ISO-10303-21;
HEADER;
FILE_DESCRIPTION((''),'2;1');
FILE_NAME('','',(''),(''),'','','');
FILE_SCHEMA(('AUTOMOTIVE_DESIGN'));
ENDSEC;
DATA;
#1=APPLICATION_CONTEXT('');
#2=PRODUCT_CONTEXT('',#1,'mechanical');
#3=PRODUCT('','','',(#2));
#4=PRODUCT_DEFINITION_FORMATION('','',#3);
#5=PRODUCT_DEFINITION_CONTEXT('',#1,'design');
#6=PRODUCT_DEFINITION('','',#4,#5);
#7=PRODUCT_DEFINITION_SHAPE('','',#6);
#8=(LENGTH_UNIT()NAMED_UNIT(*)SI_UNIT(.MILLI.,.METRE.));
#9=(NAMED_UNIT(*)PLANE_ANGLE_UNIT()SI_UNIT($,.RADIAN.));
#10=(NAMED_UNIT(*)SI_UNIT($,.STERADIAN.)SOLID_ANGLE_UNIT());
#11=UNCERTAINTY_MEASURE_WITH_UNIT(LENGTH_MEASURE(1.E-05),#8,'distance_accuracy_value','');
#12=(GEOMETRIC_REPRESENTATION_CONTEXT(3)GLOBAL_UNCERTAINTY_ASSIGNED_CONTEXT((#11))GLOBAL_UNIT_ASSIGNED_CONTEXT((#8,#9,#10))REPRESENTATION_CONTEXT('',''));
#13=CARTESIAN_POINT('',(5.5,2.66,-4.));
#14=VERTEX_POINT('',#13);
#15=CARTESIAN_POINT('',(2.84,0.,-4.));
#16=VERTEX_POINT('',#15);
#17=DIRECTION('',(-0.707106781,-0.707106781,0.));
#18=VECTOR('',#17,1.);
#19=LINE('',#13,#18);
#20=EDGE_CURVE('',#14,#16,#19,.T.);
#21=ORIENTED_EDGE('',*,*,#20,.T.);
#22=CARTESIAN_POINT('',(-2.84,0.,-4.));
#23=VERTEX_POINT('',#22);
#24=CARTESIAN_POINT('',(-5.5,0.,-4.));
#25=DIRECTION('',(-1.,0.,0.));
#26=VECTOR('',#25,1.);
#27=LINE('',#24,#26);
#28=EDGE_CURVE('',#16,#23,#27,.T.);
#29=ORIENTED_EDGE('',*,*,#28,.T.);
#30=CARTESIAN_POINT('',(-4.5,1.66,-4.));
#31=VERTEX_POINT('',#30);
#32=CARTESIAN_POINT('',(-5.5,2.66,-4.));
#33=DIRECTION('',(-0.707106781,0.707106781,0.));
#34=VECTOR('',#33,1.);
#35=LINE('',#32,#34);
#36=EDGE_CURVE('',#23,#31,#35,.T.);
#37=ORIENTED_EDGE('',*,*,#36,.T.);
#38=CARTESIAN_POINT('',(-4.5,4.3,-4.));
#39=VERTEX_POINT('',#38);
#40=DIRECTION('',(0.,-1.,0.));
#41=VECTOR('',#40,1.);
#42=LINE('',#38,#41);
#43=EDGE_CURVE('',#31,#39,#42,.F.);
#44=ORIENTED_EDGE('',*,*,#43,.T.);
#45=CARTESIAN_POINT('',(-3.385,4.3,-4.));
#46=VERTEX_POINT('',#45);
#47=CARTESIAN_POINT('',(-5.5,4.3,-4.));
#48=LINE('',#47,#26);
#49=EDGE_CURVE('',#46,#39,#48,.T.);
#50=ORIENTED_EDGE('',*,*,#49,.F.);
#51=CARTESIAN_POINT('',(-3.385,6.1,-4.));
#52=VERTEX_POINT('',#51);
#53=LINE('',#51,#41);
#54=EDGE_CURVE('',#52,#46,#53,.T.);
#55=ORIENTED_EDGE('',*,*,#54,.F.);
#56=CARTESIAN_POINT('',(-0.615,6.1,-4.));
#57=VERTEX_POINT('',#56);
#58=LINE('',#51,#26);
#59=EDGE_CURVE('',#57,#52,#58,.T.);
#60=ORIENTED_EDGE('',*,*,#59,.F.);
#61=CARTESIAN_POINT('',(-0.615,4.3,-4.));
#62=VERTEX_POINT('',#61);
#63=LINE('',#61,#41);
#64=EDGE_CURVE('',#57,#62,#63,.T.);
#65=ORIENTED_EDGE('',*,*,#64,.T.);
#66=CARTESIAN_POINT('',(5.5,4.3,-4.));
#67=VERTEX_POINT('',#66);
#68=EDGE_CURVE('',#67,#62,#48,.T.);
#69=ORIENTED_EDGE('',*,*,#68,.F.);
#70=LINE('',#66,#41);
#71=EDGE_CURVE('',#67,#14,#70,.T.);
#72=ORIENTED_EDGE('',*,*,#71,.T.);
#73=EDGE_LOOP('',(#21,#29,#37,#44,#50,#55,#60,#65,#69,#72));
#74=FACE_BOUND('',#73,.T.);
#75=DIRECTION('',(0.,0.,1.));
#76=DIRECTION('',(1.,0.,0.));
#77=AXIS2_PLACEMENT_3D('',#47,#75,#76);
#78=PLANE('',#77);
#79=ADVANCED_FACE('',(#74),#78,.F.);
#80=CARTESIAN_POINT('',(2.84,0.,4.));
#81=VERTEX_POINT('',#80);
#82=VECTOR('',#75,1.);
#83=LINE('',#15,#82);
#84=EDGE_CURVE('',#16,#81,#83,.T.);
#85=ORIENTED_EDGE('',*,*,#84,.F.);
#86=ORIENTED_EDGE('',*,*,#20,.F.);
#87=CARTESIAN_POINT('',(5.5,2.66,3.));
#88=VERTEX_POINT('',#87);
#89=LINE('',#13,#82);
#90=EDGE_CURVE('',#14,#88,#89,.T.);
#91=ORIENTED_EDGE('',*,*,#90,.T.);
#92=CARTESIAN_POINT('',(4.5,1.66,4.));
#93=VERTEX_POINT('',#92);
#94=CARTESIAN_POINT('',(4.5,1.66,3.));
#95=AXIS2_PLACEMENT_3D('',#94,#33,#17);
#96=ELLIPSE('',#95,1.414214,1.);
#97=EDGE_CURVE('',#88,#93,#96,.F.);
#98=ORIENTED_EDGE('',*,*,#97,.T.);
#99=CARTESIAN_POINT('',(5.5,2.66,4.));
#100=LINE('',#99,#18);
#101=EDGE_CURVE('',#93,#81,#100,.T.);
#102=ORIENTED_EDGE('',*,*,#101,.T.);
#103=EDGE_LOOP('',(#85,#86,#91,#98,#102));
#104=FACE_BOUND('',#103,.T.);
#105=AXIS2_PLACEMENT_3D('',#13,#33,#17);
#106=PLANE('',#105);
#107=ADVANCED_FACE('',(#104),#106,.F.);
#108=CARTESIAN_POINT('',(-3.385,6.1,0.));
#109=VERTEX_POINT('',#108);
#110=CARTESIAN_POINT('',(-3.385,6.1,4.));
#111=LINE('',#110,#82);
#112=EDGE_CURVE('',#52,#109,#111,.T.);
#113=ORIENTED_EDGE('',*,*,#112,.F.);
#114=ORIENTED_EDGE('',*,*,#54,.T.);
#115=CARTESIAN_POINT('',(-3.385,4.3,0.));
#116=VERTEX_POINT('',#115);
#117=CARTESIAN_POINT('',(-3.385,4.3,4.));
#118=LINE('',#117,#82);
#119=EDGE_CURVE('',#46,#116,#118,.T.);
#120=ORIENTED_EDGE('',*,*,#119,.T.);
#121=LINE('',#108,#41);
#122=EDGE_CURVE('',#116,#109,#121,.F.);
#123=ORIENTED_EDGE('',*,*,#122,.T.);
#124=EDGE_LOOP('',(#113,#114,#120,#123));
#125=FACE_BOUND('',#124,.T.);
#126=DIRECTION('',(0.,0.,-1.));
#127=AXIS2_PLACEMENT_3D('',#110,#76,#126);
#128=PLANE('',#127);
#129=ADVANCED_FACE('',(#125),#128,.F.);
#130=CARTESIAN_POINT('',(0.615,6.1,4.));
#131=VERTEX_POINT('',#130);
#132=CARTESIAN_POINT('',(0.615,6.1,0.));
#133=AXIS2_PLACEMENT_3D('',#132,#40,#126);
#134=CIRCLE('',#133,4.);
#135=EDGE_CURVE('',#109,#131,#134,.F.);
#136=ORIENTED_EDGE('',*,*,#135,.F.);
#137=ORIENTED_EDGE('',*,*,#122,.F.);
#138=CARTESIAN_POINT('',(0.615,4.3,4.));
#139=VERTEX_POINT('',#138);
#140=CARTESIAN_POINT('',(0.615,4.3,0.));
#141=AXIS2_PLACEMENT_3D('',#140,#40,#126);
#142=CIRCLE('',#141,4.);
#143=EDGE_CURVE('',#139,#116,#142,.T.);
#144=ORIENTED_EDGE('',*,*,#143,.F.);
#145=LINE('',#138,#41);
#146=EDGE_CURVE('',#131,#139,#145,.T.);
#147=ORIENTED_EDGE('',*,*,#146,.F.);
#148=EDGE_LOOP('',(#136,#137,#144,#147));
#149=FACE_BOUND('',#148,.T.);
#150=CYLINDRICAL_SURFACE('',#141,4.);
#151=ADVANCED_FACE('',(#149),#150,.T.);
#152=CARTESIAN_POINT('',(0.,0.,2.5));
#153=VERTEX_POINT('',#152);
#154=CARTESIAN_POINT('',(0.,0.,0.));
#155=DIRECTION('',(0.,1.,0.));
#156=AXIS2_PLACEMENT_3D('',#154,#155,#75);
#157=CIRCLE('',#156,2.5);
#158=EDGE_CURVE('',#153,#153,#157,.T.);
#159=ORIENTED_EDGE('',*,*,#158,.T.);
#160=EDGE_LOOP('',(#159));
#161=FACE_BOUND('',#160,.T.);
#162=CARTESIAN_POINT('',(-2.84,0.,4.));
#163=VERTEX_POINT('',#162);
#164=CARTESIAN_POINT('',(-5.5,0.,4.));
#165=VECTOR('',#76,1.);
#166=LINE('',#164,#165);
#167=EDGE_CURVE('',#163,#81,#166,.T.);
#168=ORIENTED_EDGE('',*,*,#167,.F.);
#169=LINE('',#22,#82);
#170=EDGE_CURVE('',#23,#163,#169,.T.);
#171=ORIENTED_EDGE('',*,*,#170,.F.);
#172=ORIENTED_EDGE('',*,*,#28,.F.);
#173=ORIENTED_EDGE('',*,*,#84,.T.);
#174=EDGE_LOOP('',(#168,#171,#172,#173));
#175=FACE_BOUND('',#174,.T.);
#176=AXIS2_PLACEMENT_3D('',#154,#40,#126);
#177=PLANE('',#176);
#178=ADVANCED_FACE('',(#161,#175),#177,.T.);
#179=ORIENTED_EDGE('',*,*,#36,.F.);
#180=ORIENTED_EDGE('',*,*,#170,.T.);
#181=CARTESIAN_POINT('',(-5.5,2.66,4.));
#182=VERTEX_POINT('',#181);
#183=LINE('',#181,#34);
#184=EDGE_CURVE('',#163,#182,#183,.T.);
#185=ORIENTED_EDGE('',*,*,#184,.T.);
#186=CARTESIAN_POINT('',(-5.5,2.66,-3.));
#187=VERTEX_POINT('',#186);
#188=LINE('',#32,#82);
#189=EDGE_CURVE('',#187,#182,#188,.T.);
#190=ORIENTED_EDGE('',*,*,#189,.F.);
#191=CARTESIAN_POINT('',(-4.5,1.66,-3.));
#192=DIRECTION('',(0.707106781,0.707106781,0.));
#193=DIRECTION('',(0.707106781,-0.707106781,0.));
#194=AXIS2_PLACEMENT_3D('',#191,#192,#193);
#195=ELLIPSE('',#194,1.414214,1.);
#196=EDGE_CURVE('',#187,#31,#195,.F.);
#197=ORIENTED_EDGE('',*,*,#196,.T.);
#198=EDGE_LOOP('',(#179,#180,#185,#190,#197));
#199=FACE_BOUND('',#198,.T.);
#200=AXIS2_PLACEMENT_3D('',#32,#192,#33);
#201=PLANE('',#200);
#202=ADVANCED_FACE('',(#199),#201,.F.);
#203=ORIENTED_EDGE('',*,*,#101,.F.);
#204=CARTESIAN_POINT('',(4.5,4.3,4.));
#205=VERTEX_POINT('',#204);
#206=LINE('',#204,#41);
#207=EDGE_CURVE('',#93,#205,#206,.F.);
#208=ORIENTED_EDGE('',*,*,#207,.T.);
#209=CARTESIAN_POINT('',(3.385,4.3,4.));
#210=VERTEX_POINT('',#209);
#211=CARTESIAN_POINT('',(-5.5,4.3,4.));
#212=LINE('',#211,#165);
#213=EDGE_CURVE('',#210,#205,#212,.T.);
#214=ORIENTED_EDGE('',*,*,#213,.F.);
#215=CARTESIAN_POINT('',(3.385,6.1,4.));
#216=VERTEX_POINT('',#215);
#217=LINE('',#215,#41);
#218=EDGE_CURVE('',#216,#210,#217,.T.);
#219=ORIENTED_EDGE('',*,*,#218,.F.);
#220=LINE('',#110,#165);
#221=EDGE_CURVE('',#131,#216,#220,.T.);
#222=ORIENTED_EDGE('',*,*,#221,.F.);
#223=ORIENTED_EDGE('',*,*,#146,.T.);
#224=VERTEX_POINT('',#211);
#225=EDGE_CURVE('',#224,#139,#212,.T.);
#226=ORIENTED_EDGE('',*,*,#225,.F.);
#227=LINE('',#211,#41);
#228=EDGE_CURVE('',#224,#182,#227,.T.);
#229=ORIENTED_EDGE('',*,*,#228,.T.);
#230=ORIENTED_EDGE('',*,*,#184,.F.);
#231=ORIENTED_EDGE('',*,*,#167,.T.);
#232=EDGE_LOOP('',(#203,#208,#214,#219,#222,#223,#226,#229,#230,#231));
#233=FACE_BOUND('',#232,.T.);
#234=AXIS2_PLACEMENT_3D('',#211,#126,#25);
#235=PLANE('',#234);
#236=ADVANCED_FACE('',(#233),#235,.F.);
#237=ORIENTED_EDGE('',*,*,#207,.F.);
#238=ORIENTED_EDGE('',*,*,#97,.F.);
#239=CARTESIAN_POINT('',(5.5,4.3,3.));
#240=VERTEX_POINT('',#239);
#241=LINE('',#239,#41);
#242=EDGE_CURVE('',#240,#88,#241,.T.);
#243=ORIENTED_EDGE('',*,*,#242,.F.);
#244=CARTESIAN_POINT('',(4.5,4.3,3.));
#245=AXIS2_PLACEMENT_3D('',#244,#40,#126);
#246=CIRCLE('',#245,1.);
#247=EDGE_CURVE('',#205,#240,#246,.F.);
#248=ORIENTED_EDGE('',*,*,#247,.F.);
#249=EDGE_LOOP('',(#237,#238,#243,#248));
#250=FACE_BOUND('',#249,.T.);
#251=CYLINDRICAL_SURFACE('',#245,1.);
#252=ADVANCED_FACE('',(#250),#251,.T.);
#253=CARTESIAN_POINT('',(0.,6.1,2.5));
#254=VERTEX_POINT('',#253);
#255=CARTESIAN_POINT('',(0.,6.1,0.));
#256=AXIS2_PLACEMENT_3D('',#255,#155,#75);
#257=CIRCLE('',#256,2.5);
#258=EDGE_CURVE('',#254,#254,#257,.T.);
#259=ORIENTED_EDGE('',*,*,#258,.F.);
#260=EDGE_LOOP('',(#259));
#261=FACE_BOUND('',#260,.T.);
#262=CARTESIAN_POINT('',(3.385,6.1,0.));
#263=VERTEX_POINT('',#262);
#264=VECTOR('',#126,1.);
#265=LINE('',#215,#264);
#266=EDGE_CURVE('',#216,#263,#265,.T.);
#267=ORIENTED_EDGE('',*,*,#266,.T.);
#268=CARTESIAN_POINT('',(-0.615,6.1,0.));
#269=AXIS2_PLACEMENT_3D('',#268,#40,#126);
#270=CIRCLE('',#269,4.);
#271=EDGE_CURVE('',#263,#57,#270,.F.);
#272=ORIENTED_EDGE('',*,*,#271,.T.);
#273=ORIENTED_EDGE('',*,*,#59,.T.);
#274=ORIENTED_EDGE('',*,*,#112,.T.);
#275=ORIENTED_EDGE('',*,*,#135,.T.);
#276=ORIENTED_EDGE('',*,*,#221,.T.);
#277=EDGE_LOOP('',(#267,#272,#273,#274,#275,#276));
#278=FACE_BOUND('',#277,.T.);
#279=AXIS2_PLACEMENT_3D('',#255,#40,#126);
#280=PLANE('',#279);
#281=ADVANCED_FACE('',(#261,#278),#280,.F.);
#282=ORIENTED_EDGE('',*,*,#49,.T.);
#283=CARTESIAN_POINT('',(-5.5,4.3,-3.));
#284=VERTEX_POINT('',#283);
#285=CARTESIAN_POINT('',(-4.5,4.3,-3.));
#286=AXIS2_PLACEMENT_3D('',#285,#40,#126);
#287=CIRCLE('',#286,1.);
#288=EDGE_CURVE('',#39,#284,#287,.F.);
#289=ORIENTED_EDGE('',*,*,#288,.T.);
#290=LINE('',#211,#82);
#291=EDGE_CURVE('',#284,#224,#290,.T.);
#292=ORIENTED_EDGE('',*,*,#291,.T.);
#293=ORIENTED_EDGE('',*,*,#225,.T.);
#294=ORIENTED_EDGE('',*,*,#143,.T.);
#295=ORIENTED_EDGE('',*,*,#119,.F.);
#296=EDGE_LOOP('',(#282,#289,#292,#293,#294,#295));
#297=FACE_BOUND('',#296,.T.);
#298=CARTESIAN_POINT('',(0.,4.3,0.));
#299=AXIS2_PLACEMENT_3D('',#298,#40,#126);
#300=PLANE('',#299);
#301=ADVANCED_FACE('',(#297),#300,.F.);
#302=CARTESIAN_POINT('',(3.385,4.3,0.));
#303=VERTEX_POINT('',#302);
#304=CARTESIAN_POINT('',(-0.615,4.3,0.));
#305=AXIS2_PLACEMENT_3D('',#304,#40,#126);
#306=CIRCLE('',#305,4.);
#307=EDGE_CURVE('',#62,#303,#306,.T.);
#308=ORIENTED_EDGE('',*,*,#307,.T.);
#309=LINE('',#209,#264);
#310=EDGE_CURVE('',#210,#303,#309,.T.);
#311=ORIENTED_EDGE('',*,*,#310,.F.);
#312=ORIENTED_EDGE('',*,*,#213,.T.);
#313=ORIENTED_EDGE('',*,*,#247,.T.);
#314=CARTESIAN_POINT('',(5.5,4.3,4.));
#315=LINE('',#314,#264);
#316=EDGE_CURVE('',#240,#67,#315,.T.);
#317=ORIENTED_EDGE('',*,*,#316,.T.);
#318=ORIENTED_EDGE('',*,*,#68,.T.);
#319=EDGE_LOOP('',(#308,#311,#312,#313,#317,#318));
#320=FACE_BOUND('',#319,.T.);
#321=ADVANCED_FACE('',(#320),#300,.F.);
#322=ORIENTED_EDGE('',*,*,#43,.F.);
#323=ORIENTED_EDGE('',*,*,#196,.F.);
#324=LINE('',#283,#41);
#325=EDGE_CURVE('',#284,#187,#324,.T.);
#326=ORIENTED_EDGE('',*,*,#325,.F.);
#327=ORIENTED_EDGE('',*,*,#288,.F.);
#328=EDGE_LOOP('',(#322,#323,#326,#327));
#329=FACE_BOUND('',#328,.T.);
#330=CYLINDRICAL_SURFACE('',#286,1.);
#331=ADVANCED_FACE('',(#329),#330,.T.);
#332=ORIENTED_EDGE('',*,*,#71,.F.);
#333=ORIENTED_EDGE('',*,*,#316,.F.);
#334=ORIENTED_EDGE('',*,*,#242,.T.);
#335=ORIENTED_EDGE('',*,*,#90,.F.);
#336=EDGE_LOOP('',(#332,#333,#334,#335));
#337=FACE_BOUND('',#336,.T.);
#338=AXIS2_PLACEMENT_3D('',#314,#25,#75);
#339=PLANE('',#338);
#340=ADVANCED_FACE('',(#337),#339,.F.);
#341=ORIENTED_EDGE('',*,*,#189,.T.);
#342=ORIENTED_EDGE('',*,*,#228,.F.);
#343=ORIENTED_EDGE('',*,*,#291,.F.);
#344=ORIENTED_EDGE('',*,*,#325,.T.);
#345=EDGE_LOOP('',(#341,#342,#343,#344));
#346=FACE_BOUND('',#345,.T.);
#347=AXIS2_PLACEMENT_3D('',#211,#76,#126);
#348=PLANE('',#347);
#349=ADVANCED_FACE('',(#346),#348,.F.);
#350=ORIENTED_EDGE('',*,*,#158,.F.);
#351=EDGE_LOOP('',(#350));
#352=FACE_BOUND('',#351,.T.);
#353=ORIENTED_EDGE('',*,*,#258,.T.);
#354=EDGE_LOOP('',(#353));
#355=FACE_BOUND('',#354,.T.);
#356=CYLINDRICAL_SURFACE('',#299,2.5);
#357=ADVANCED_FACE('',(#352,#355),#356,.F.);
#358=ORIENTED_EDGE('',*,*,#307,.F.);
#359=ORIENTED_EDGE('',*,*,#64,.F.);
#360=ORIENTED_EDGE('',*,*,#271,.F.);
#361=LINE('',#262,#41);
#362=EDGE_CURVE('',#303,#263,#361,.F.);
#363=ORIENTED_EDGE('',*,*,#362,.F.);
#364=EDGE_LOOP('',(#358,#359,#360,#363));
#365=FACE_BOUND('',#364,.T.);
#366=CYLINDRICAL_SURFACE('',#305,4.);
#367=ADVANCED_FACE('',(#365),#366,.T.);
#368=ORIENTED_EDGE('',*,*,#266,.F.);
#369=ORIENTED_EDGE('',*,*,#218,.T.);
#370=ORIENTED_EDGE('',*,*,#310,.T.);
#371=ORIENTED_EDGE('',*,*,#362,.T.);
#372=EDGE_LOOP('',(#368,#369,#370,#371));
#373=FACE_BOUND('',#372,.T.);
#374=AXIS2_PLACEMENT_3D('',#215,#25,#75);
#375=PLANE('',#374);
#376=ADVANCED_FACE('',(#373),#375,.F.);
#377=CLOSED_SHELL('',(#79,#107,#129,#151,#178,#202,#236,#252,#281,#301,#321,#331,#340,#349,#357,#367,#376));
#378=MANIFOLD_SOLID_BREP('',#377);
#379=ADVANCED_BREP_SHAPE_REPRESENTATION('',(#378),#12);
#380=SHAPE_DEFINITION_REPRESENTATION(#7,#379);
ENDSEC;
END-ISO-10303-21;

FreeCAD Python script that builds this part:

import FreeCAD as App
import Part
import Sketcher
from FreeCAD import Vector
Q = App.Units.Quantity


def edges_at(feature, points):
    """Names of the edges that pass closest to the given points."""
    edges = feature.Shape.Edges
    near = lambda p: min(range(len(edges)), key=lambda i: edges[i].distToShape(Part.Vertex(*p))[0])
    return sorted({f"Edge{near(p) + 1}" for p in points})


def add_polygon(sketch, points):
    """Adds a closed chain of lines whose ends are joined by coincident constraints."""
    first, n = sketch.GeometryCount, len(points)
    for a, b in zip(points, points[1:] + points[:1]):
        sketch.addGeometry(Part.LineSegment(App.Vector(*a, 0), App.Vector(*b, 0)), False)
    for i in range(n):
        sketch.addConstraint(Sketcher.Constraint("Coincident", first + i, 2, first + (i + 1) % n, 1))

doc = App.newDocument("Part")
params = doc.addObject("Spreadsheet::Sheet", "Params")
for row, (alias, value) in enumerate([
    ("sketch1_diameter", "5 mm"),
    ("sketch1_width", "11 mm"),
    ("sketch1_height", "8 mm"),
    ("pad1_length", "4.3 mm"),
    ("sketch2_width", "2.66 mm"),
    ("sketch3_diameter", "5 mm"),
    ("sketch3_height", "8 mm"),
    ("sketch3_width", "6.77 mm"),
    ("pad2_length", "1.8 mm"),
    ("fillet_radius", "4 mm"),
    ("fillet2_radius", "1 mm"),
], start=1):
    params.set(f"A{row}", alias)
    params.set(f"B{row}", "=" + value)
    params.setAlias(f"B{row}", alias)

body = doc.addObject("PartDesign::Body", "Body")

# Sketch on XZ plane
sketch1 = doc.addObject("Sketcher::SketchObject", "Sketch")
body.addObject(sketch1)
sketch1.AttachmentSupport = (doc.XZ_Plane, [""])
sketch1.MapMode = "FlatFace"
add_polygon(sketch1, [(-5.5, -4), (-5.5, 4), (5.5, 4), (5.5, -4)])  # lines 0-3
sketch1.addGeometry(Part.Circle(Vector(0, 0, 0), Vector(0, 0, 1), 2.5), False)  # 4
sketch1.addConstraint([
    Sketcher.Constraint("Vertical", 0),
    Sketcher.Constraint("Horizontal", 1),
    Sketcher.Constraint("Vertical", 2),
    Sketcher.Constraint("Horizontal", 3),
    Sketcher.Constraint("Coincident", 4, 3, -1, 1),
    Sketcher.Constraint("Symmetric", 0, 2, 2, 2, -1, 1),
    Sketcher.Constraint("Diameter", 4, Q("5 mm")),
    Sketcher.Constraint("DistanceX", 1, 1, 1, 2, Q("11 mm")),
    Sketcher.Constraint("DistanceY", 0, 1, 0, 2, Q("8 mm")),
])
sketch1.setExpression("Constraints[10]", "Params.sketch1_diameter")
sketch1.setExpression("Constraints[11]", "Params.sketch1_width")
sketch1.setExpression("Constraints[12]", "Params.sketch1_height")
pad1 = doc.addObject("PartDesign::Pad", "Pad")
body.addObject(pad1)
pad1.Profile = sketch1
pad1.setExpression("Length", "Params.pad1_length")
pad1.Reversed = True

# Sketch on XY plane
sketch2 = doc.addObject("Sketcher::SketchObject", "Sketch001")
body.addObject(sketch2)
sketch2.AttachmentSupport = (doc.XY_Plane, [""])
sketch2.MapMode = "FlatFace"
sketch2.AttachmentOffset = App.Placement(Vector(0, 0, 4), App.Rotation())
add_polygon(sketch2, [(-2.8, 0), (-5.5, 2.7), (-5.5, 0)])  # lines 0-2
add_polygon(sketch2, [(5.5, 0), (5.5, 2.7), (2.8, 0)])  # lines 3-5
sketch2.addConstraint([
    Sketcher.Constraint("Vertical", 1),
    Sketcher.Constraint("Horizontal", 2),
    Sketcher.Constraint("Vertical", 3),
    Sketcher.Constraint("Horizontal", 5),
    Sketcher.Constraint("Symmetric", 2, 2, 4, 2, -1, 1),
    Sketcher.Constraint("Symmetric", 0, 2, 3, 2, -2),
    Sketcher.Constraint("PointOnObject", 1, 2, -1),
    Sketcher.Constraint("Perpendicular", 0, 4),
    Sketcher.Constraint("DistanceX", 0, 2, 3, 2, Q("11 mm")),
    Sketcher.Constraint("DistanceX", 2, 1, 2, 2, Q("2.66 mm")),
])
sketch2.setExpression("Constraints[15]", "Params.sketch2_width")
pocket1 = doc.addObject("PartDesign::Pocket", "Pocket")
body.addObject(pocket1)
pocket1.Profile = sketch2
pocket1.Type = "ThroughAll"

# Sketch on XZ plane
sketch3 = doc.addObject("Sketcher::SketchObject", "Sketch002")
body.addObject(sketch3)
sketch3.AttachmentSupport = (doc.XZ_Plane, [""])
sketch3.MapMode = "FlatFace"
sketch3.AttachmentOffset = App.Placement(Vector(0, 0, -4.3), App.Rotation())
add_polygon(sketch3, [(-3.4, -4), (-3.4, 4), (3.4, 4), (3.4, -4)])  # lines 0-3
sketch3.addGeometry(Part.Circle(Vector(0, 0, 0), Vector(0, 0, 1), 2.5), False)  # 4
sketch3.addConstraint([
    Sketcher.Constraint("Vertical", 0),
    Sketcher.Constraint("Horizontal", 1),
    Sketcher.Constraint("Vertical", 2),
    Sketcher.Constraint("Horizontal", 3),
    Sketcher.Constraint("Coincident", 4, 3, -1, 1),
    Sketcher.Constraint("Symmetric", 0, 2, 2, 2, -1, 1),
    Sketcher.Constraint("Diameter", 4, Q("5 mm")),
    Sketcher.Constraint("DistanceY", 0, 1, 0, 2, Q("8 mm")),
    Sketcher.Constraint("DistanceX", 1, 1, 1, 2, Q("6.77 mm")),
])
sketch3.setExpression("Constraints[10]", "Params.sketch3_diameter")
sketch3.setExpression("Constraints[11]", "Params.sketch3_height")
sketch3.setExpression("Constraints[12]", "Params.sketch3_width")
pad2 = doc.addObject("PartDesign::Pad", "Pad001")
body.addObject(pad2)
pad2.Profile = sketch3
pad2.setExpression("Length", "Params.pad2_length")
pad2.Reversed = True
doc.recompute()

fillet = doc.addObject("PartDesign::Fillet", "Fillet")
body.addObject(fillet)
fillet.Base = (pad2, edges_at(pad2, [(3.385, 5.2, -4), (-3.385, 5.2, 4)]))
fillet.setExpression("Radius", "Params.fillet_radius")
doc.recompute()

fillet2 = doc.addObject("PartDesign::Fillet", "Fillet001")
body.addObject(fillet2)
fillet2.Base = (fillet, edges_at(fillet, [(5.5, 3.48, 4), (-5.5, 3.48, -4)]))
fillet2.setExpression("Radius", "Params.fillet2_radius")

doc.recompute()
